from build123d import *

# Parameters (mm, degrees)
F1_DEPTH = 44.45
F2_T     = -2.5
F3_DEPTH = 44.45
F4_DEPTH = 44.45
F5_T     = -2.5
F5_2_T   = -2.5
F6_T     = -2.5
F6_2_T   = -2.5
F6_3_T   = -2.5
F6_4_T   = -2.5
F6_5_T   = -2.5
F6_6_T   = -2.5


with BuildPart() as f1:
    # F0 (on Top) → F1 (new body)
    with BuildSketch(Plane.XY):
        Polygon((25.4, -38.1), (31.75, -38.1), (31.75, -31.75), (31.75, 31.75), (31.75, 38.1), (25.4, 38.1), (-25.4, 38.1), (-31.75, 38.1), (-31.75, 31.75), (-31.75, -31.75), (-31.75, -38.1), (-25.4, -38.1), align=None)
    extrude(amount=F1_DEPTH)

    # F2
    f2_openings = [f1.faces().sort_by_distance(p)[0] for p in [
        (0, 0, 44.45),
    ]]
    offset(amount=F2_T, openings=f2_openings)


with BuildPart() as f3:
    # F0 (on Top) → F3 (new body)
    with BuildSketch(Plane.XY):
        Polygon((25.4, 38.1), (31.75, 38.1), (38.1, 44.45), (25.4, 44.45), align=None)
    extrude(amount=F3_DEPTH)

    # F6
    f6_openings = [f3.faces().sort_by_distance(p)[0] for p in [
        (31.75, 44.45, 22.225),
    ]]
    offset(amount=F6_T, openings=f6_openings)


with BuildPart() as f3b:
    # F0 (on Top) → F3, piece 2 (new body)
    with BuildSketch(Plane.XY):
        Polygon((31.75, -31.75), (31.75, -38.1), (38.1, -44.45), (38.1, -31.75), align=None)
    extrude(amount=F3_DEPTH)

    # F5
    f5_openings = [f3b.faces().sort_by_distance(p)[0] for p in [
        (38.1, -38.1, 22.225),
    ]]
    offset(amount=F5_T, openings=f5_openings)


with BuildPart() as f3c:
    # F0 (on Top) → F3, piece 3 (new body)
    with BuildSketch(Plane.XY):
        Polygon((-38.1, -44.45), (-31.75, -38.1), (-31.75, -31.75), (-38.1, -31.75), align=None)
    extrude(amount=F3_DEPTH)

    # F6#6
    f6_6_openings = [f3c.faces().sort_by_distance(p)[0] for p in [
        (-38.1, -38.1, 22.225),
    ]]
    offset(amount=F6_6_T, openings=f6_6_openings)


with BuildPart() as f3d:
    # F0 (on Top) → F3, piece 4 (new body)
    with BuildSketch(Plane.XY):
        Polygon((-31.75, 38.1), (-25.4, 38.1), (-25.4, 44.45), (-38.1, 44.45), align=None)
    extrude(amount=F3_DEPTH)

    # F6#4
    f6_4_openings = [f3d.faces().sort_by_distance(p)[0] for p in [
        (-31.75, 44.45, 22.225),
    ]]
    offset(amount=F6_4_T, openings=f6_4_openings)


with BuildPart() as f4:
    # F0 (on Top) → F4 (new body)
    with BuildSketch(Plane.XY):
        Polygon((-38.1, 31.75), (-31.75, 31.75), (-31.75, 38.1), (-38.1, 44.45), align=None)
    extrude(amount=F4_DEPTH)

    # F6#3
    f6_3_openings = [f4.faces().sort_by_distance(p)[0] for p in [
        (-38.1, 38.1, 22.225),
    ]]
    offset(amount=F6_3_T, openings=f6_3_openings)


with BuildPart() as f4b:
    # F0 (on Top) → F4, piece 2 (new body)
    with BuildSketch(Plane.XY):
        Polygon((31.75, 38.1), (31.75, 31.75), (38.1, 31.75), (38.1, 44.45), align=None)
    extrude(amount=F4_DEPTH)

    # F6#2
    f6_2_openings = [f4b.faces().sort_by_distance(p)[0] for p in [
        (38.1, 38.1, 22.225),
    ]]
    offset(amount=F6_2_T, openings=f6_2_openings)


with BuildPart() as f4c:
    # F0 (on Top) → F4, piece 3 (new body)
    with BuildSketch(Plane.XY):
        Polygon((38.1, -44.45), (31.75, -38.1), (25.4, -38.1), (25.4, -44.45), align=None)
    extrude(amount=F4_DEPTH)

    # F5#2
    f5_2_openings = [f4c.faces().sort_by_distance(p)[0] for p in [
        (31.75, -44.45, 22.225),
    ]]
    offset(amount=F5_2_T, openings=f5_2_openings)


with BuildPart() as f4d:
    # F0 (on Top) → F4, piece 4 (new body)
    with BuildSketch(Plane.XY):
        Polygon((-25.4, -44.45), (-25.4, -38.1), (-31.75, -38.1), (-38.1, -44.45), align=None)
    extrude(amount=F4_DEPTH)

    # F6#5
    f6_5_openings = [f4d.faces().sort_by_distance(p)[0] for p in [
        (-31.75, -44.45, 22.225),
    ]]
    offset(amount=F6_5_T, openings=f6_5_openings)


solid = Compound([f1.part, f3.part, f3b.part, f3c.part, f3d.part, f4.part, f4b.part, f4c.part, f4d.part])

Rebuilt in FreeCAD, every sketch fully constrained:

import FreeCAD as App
import Part
import Sketcher

V = App.Vector
Q = App.Units.Quantity


def faces_at(feature, points):
    """Names of the faces that lie closest to the given points."""
    faces = feature.Shape.Faces
    near = lambda p: min(range(len(faces)), key=lambda i: faces[i].distToShape(Part.Vertex(*p))[0])
    return sorted({f"Face{near(p) + 1}" for p in points})

doc = App.newDocument("Part")
params = doc.addObject("Spreadsheet::Sheet", "Params")
for row, (alias, value) in enumerate([
    ("sketch1_height", "3 in"),
    ("sketch1_width", "2.5 in"),
    ("pad1_length", "1.75 in"),
    ("thickness_wall", "2.5 mm"),
    ("sketch2_width", "0.5 in"),
    ("pad2_length", "1.75 in"),
    ("thickness2_wall", "2.5 mm"),
    ("sketch3_height", "0.5 in"),
    ("pad3_length", "1.75 in"),
    ("thickness3_wall", "2.5 mm"),
    ("sketch4_height", "0.5 in"),
    ("pad4_length", "1.75 in"),
    ("thickness4_wall", "2.5 mm"),
    ("sketch5_width", "0.5 in"),
    ("pad5_length", "1.75 in"),
    ("thickness5_wall", "2.5 mm"),
    ("sketch6_height", "0.5 in"),
    ("pad6_length", "1.75 in"),
    ("thickness6_wall", "2.5 mm"),
    ("sketch7_height", "0.5 in"),
    ("pad7_length", "1.75 in"),
    ("thickness7_wall", "2.5 mm"),
    ("sketch8_width", "0.5 in"),
    ("pad8_length", "1.75 in"),
    ("thickness8_wall", "2.5 mm"),
    ("sketch9_width", "0.5 in"),
    ("pad9_length", "1.75 in"),
    ("thickness9_wall", "2.5 mm"),
], start=1):
    params.set(f"A{row}", alias)
    params.set(f"B{row}", "=" + value)
    params.setAlias(f"B{row}", alias)

body = doc.addObject("PartDesign::Body", "Body")

# Sketch on XY plane
sketch1 = body.newObject("Sketcher::SketchObject", "Sketch")
sketch1.AttachmentSupport = (doc.getObject("XY_Plane"), [""])
sketch1.MapMode = "FlatFace"
sketch1.addGeometry([
    Part.LineSegment(V(31.75, -38.1, 0), V(31.75, 38.1, 0)),
    Part.LineSegment(V(31.75, 38.1, 0), V(-31.75, 38.1, 0)),
    Part.LineSegment(V(-31.75, 38.1, 0), V(-31.75, -38.1, 0)),
    Part.LineSegment(V(-31.75, -38.1, 0), V(31.75, -38.1, 0)),
], False)
sketch1.addConstraint([
    Sketcher.Constraint("Coincident", 0, 2, 1, 1),
    Sketcher.Constraint("Coincident", 1, 2, 2, 1),
    Sketcher.Constraint("Coincident", 2, 2, 3, 1),
    Sketcher.Constraint("Coincident", 3, 2, 0, 1),
    Sketcher.Constraint("Vertical", 0),
    Sketcher.Constraint("Horizontal", 1),
    Sketcher.Constraint("Vertical", 2),
    Sketcher.Constraint("Horizontal", 3),
    Sketcher.Constraint("Symmetric", 0, 2, 2, 2, -1, 1),
    Sketcher.Constraint("DistanceY", 0, 1, 0, 2, Q("3 in")),
    Sketcher.Constraint("DistanceX", 1, 2, 1, 1, Q("2.5 in")),
])
sketch1.setExpression("Constraints[9]", "Params.sketch1_height")
sketch1.setExpression("Constraints[10]", "Params.sketch1_width")
pad1 = body.newObject("PartDesign::Pad", "Pad")
pad1.Profile = sketch1
pad1.setExpression("Length", "Params.pad1_length")
doc.recompute()

thickness = body.newObject("PartDesign::Thickness", "Thickness")
thickness.Base = (pad1, faces_at(pad1, [(0, 0, 44.45)]))
thickness.setExpression("Value", "Params.thickness_wall")
thickness.Reversed = True
thickness.Join = "Arc"
body2 = doc.addObject("PartDesign::Body", "Body001")

# Sketch on XY plane
sketch2 = body2.newObject("Sketcher::SketchObject", "Sketch001")
sketch2.AttachmentSupport = (doc.getObject("XY_Plane001"), [""])
sketch2.MapMode = "FlatFace"
sketch2.addGeometry([
    Part.LineSegment(V(25.4, 38.1, 0), V(31.75, 38.1, 0)),
    Part.LineSegment(V(31.75, 38.1, 0), V(38.1, 44.45, 0)),
    Part.LineSegment(V(38.1, 44.45, 0), V(25.4, 44.45, 0)),
    Part.LineSegment(V(25.4, 44.45, 0), V(25.4, 38.1, 0)),
], False)
sketch2.addConstraint([
    Sketcher.Constraint("Coincident", 0, 2, 1, 1),
    Sketcher.Constraint("Coincident", 1, 2, 2, 1),
    Sketcher.Constraint("Coincident", 2, 2, 3, 1),
    Sketcher.Constraint("Coincident", 3, 2, 0, 1),
    Sketcher.Constraint("Horizontal", 0),
    Sketcher.Constraint("Horizontal", 2),
    Sketcher.Constraint("Vertical", 3),
    Sketcher.Constraint("Equal", 0, 3),
    Sketcher.Constraint("DistanceX", 2, 2, 2, 1, Q("0.5 in")),
    Sketcher.Constraint("DistanceX", -1, 1, 2, 2, Q("1 in")),
    Sketcher.Constraint("Angle", 1, Q("45 deg")),
    Sketcher.Constraint("DistanceY", -1, 1, 0, 2, Q("1.5 in")),
])
sketch2.setExpression("Constraints[8]", "Params.sketch2_width")
pad2 = body2.newObject("PartDesign::Pad", "Pad001")
pad2.Profile = sketch2
pad2.setExpression("Length", "Params.pad2_length")
doc.recompute()

thickness2 = body2.newObject("PartDesign::Thickness", "Thickness001")
thickness2.Base = (pad2, faces_at(pad2, [(31.75, 44.45, 22.225)]))
thickness2.setExpression("Value", "Params.thickness2_wall")
thickness2.Reversed = True
thickness2.Join = "Arc"
body3 = doc.addObject("PartDesign::Body", "Body002")

# Sketch on XY plane
sketch3 = body3.newObject("Sketcher::SketchObject", "Sketch002")
sketch3.AttachmentSupport = (doc.getObject("XY_Plane002"), [""])
sketch3.MapMode = "FlatFace"
sketch3.addGeometry([
    Part.LineSegment(V(31.75, -31.75, 0), V(31.75, -38.1, 0)),
    Part.LineSegment(V(31.75, -38.1, 0), V(38.1, -44.45, 0)),
    Part.LineSegment(V(38.1, -44.45, 0), V(38.1, -31.75, 0)),
    Part.LineSegment(V(38.1, -31.75, 0), V(31.75, -31.75, 0)),
], False)
sketch3.addConstraint([
    Sketcher.Constraint("Coincident", 0, 2, 1, 1),
    Sketcher.Constraint("Coincident", 1, 2, 2, 1),
    Sketcher.Constraint("Coincident", 2, 2, 3, 1),
    Sketcher.Constraint("Coincident", 3, 2, 0, 1),
    Sketcher.Constraint("Vertical", 0),
    Sketcher.Constraint("Vertical", 2),
    Sketcher.Constraint("Horizontal", 3),
    Sketcher.Constraint("Equal", 3, 0),
    Sketcher.Constraint("DistanceY", 2, 1, 2, 2, Q("0.5 in")),
    Sketcher.Constraint("Angle", 1, Q("-45 deg")),
    Sketcher.Constraint("DistanceY", 0, 2, -1, 1, Q("1.5 in")),
    Sketcher.Constraint("DistanceX", -1, 1, 1, 2, Q("1.5 in")),
])
sketch3.setExpression("Constraints[8]", "Params.sketch3_height")
pad3 = body3.newObject("PartDesign::Pad", "Pad002")
pad3.Profile = sketch3
pad3.setExpression("Length", "Params.pad3_length")
doc.recompute()

thickness3 = body3.newObject("PartDesign::Thickness", "Thickness002")
thickness3.Base = (pad3, faces_at(pad3, [(38.1, -38.1, 22.225)]))
thickness3.setExpression("Value", "Params.thickness3_wall")
thickness3.Reversed = True
thickness3.Join = "Arc"
body4 = doc.addObject("PartDesign::Body", "Body003")

# Sketch on XY plane
sketch4 = body4.newObject("Sketcher::SketchObject", "Sketch003")
sketch4.AttachmentSupport = (doc.getObject("XY_Plane003"), [""])
sketch4.MapMode = "FlatFace"
sketch4.addGeometry([
    Part.LineSegment(V(-38.1, -44.45, 0), V(-31.75, -38.1, 0)),
    Part.LineSegment(V(-31.75, -38.1, 0), V(-31.75, -31.75, 0)),
    Part.LineSegment(V(-31.75, -31.75, 0), V(-38.1, -31.75, 0)),
    Part.LineSegment(V(-38.1, -31.75, 0), V(-38.1, -44.45, 0)),
], False)
sketch4.addConstraint([
    Sketcher.Constraint("Coincident", 0, 2, 1, 1),
    Sketcher.Constraint("Coincident", 1, 2, 2, 1),
    Sketcher.Constraint("Coincident", 2, 2, 3, 1),
    Sketcher.Constraint("Coincident", 3, 2, 0, 1),
    Sketcher.Constraint("Vertical", 1),
    Sketcher.Constraint("Horizontal", 2),
    Sketcher.Constraint("Vertical", 3),
    Sketcher.Constraint("Equal", 2, 1),
    Sketcher.Constraint("DistanceY", 3, 2, 3, 1, Q("0.5 in")),
    Sketcher.Constraint("Angle", 0, Q("45 deg")),
    Sketcher.Constraint("DistanceY", 0, 2, -1, 1, Q("1.5 in")),
    Sketcher.Constraint("DistanceX", 2, 2, -1, 1, Q("1.5 in")),
])
sketch4.setExpression("Constraints[8]", "Params.sketch4_height")
pad4 = body4.newObject("PartDesign::Pad", "Pad003")
pad4.Profile = sketch4
pad4.setExpression("Length", "Params.pad4_length")
doc.recompute()

thickness4 = body4.newObject("PartDesign::Thickness", "Thickness003")
thickness4.Base = (pad4, faces_at(pad4, [(-38.1, -38.1, 22.225)]))
thickness4.setExpression("Value", "Params.thickness4_wall")
thickness4.Reversed = True
thickness4.Join = "Arc"
body5 = doc.addObject("PartDesign::Body", "Body004")

# Sketch on XY plane
sketch5 = body5.newObject("Sketcher::SketchObject", "Sketch004")
sketch5.AttachmentSupport = (doc.getObject("XY_Plane004"), [""])
sketch5.MapMode = "FlatFace"
sketch5.addGeometry([
    Part.LineSegment(V(-31.75, 38.1, 0), V(-25.4, 38.1, 0)),
    Part.LineSegment(V(-25.4, 38.1, 0), V(-25.4, 44.45, 0)),
    Part.LineSegment(V(-25.4, 44.45, 0), V(-38.1, 44.45, 0)),
    Part.LineSegment(V(-38.1, 44.45, 0), V(-31.75, 38.1, 0)),
], False)
sketch5.addConstraint([
    Sketcher.Constraint("Coincident", 0, 2, 1, 1),
    Sketcher.Constraint("Coincident", 1, 2, 2, 1),
    Sketcher.Constraint("Coincident", 2, 2, 3, 1),
    Sketcher.Constraint("Coincident", 3, 2, 0, 1),
    Sketcher.Constraint("Horizontal", 0),
    Sketcher.Constraint("Vertical", 1),
    Sketcher.Constraint("Horizontal", 2),
    Sketcher.Constraint("Equal", 0, 1),
    Sketcher.Constraint("DistanceX", 2, 2, 2, 1, Q("0.5 in")),
    Sketcher.Constraint("DistanceX", 0, 2, -1, 1, Q("1 in")),
    Sketcher.Constraint("Angle", 3, Q("-45 deg")),
    Sketcher.Constraint("DistanceY", -1, 1, 0, 2, Q("1.5 in")),
])
sketch5.setExpression("Constraints[8]", "Params.sketch5_width")
pad5 = body5.newObject("PartDesign::Pad", "Pad004")
pad5.Profile = sketch5
pad5.setExpression("Length", "Params.pad5_length")
doc.recompute()

thickness5 = body5.newObject("PartDesign::Thickness", "Thickness004")
thickness5.Base = (pad5, faces_at(pad5, [(-31.75, 44.45, 22.225)]))
thickness5.setExpression("Value", "Params.thickness5_wall")
thickness5.Reversed = True
thickness5.Join = "Arc"
body6 = doc.addObject("PartDesign::Body", "Body005")

# Sketch on XY plane
sketch6 = body6.newObject("Sketcher::SketchObject", "Sketch005")
sketch6.AttachmentSupport = (doc.getObject("XY_Plane005"), [""])
sketch6.MapMode = "FlatFace"
sketch6.addGeometry([
    Part.LineSegment(V(-38.1, 31.75, 0), V(-31.75, 31.75, 0)),
    Part.LineSegment(V(-31.75, 31.75, 0), V(-31.75, 38.1, 0)),
    Part.LineSegment(V(-31.75, 38.1, 0), V(-38.1, 44.45, 0)),
    Part.LineSegment(V(-38.1, 44.45, 0), V(-38.1, 31.75, 0)),
], False)
sketch6.addConstraint([
    Sketcher.Constraint("Coincident", 0, 2, 1, 1),
    Sketcher.Constraint("Coincident", 1, 2, 2, 1),
    Sketcher.Constraint("Coincident", 2, 2, 3, 1),
    Sketcher.Constraint("Coincident", 3, 2, 0, 1),
    Sketcher.Constraint("Horizontal", 0),
    Sketcher.Constraint("Vertical", 1),
    Sketcher.Constraint("Vertical", 3),
    Sketcher.Constraint("Equal", 0, 1),
    Sketcher.Constraint("DistanceY", 3, 2, 3, 1, Q("0.5 in")),
    Sketcher.Constraint("Angle", 2, Q("135 deg")),
    Sketcher.Constraint("DistanceY", -1, 1, 1, 2, Q("1.5 in")),
    Sketcher.Constraint("DistanceX", 2, 2, -1, 1, Q("1.5 in")),
])
sketch6.setExpression("Constraints[8]", "Params.sketch6_height")
pad6 = body6.newObject("PartDesign::Pad", "Pad005")
pad6.Profile = sketch6
pad6.setExpression("Length", "Params.pad6_length")
doc.recompute()

thickness6 = body6.newObject("PartDesign::Thickness", "Thickness005")
thickness6.Base = (pad6, faces_at(pad6, [(-38.1, 38.1, 22.225)]))
thickness6.setExpression("Value", "Params.thickness6_wall")
thickness6.Reversed = True
thickness6.Join = "Arc"
body7 = doc.addObject("PartDesign::Body", "Body006")

# Sketch on XY plane
sketch7 = body7.newObject("Sketcher::SketchObject", "Sketch006")
sketch7.AttachmentSupport = (doc.getObject("XY_Plane006"), [""])
sketch7.MapMode = "FlatFace"
sketch7.addGeometry([
    Part.LineSegment(V(31.75, 38.1, 0), V(31.75, 31.75, 0)),
    Part.LineSegment(V(31.75, 31.75, 0), V(38.1, 31.75, 0)),
    Part.LineSegment(V(38.1, 31.75, 0), V(38.1, 44.45, 0)),
    Part.LineSegment(V(38.1, 44.45, 0), V(31.75, 38.1, 0)),
], False)
sketch7.addConstraint([
    Sketcher.Constraint("Coincident", 0, 2, 1, 1),
    Sketcher.Constraint("Coincident", 1, 2, 2, 1),
    Sketcher.Constraint("Coincident", 2, 2, 3, 1),
    Sketcher.Constraint("Coincident", 3, 2, 0, 1),
    Sketcher.Constraint("Vertical", 0),
    Sketcher.Constraint("Horizontal", 1),
    Sketcher.Constraint("Vertical", 2),
    Sketcher.Constraint("Equal", 1, 0),
    Sketcher.Constraint("DistanceY", 2, 1, 2, 2, Q("0.5 in")),
    Sketcher.Constraint("Angle", 3, Q("-135 deg")),
    Sketcher.Constraint("DistanceX", -1, 1, 1, 2, Q("1.5 in")),
    Sketcher.Constraint("DistanceY", -1, 1, 3, 2, Q("1.5 in")),
])
sketch7.setExpression("Constraints[8]", "Params.sketch7_height")
pad7 = body7.newObject("PartDesign::Pad", "Pad006")
pad7.Profile = sketch7
pad7.setExpression("Length", "Params.pad7_length")
doc.recompute()

thickness7 = body7.newObject("PartDesign::Thickness", "Thickness006")
thickness7.Base = (pad7, faces_at(pad7, [(38.1, 38.1, 22.225)]))
thickness7.setExpression("Value", "Params.thickness7_wall")
thickness7.Reversed = True
thickness7.Join = "Arc"
body8 = doc.addObject("PartDesign::Body", "Body007")

# Sketch on XY plane
sketch8 = body8.newObject("Sketcher::SketchObject", "Sketch007")
sketch8.AttachmentSupport = (doc.getObject("XY_Plane007"), [""])
sketch8.MapMode = "FlatFace"
sketch8.addGeometry([
    Part.LineSegment(V(38.1, -44.45, 0), V(31.75, -38.1, 0)),
    Part.LineSegment(V(31.75, -38.1, 0), V(25.4, -38.1, 0)),
    Part.LineSegment(V(25.4, -38.1, 0), V(25.4, -44.45, 0)),
    Part.LineSegment(V(25.4, -44.45, 0), V(38.1, -44.45, 0)),
], False)
sketch8.addConstraint([
    Sketcher.Constraint("Coincident", 0, 2, 1, 1),
    Sketcher.Constraint("Coincident", 1, 2, 2, 1),
    Sketcher.Constraint("Coincident", 2, 2, 3, 1),
    Sketcher.Constraint("Coincident", 3, 2, 0, 1),
    Sketcher.Constraint("Horizontal", 1),
    Sketcher.Constraint("Vertical", 2),
    Sketcher.Constraint("Horizontal", 3),
    Sketcher.Constraint("Equal", 1, 2),
    Sketcher.Constraint("DistanceX", 3, 1, 3, 2, Q("0.5 in")),
    Sketcher.Constraint("DistanceX", -1, 1, 1, 2, Q("1 in")),
    Sketcher.Constraint("Angle", 0, Q("135 deg")),
    Sketcher.Constraint("DistanceY", 0, 2, -1, 1, Q("1.5 in")),
])
sketch8.setExpression("Constraints[8]", "Params.sketch8_width")
pad8 = body8.newObject("PartDesign::Pad", "Pad007")
pad8.Profile = sketch8
pad8.setExpression("Length", "Params.pad8_length")
doc.recompute()

thickness8 = body8.newObject("PartDesign::Thickness", "Thickness007")
thickness8.Base = (pad8, faces_at(pad8, [(31.75, -44.45, 22.225)]))
thickness8.setExpression("Value", "Params.thickness8_wall")
thickness8.Reversed = True
thickness8.Join = "Arc"
body9 = doc.addObject("PartDesign::Body", "Body008")

# Sketch on XY plane
sketch9 = body9.newObject("Sketcher::SketchObject", "Sketch008")
sketch9.AttachmentSupport = (doc.getObject("XY_Plane008"), [""])
sketch9.MapMode = "FlatFace"
sketch9.addGeometry([
    Part.LineSegment(V(-25.4, -44.45, 0), V(-25.4, -38.1, 0)),
    Part.LineSegment(V(-25.4, -38.1, 0), V(-31.75, -38.1, 0)),
    Part.LineSegment(V(-31.75, -38.1, 0), V(-38.1, -44.45, 0)),
    Part.LineSegment(V(-38.1, -44.45, 0), V(-25.4, -44.45, 0)),
], False)
sketch9.addConstraint([
    Sketcher.Constraint("Coincident", 0, 2, 1, 1),
    Sketcher.Constraint("Coincident", 1, 2, 2, 1),
    Sketcher.Constraint("Coincident", 2, 2, 3, 1),
    Sketcher.Constraint("Coincident", 3, 2, 0, 1),
    Sketcher.Constraint("Vertical", 0),
    Sketcher.Constraint("Horizontal", 1),
    Sketcher.Constraint("Horizontal", 3),
    Sketcher.Constraint("Equal", 1, 0),
    Sketcher.Constraint("DistanceX", 3, 1, 3, 2, Q("0.5 in")),
    Sketcher.Constraint("DistanceX", 0, 2, -1, 1, Q("1 in")),
    Sketcher.Constraint("Angle", 2, Q("-135 deg")),
    Sketcher.Constraint("DistanceY", 0, 2, -1, 1, Q("1.5 in")),
])
sketch9.setExpression("Constraints[8]", "Params.sketch9_width")
pad9 = body9.newObject("PartDesign::Pad", "Pad008")
pad9.Profile = sketch9
pad9.setExpression("Length", "Params.pad9_length")
doc.recompute()

thickness9 = body9.newObject("PartDesign::Thickness", "Thickness008")
thickness9.Base = (pad9, faces_at(pad9, [(-31.75, -44.45, 22.225)]))
thickness9.setExpression("Value", "Params.thickness9_wall")
thickness9.Reversed = True
thickness9.Join = "Arc"

doc.recompute()
